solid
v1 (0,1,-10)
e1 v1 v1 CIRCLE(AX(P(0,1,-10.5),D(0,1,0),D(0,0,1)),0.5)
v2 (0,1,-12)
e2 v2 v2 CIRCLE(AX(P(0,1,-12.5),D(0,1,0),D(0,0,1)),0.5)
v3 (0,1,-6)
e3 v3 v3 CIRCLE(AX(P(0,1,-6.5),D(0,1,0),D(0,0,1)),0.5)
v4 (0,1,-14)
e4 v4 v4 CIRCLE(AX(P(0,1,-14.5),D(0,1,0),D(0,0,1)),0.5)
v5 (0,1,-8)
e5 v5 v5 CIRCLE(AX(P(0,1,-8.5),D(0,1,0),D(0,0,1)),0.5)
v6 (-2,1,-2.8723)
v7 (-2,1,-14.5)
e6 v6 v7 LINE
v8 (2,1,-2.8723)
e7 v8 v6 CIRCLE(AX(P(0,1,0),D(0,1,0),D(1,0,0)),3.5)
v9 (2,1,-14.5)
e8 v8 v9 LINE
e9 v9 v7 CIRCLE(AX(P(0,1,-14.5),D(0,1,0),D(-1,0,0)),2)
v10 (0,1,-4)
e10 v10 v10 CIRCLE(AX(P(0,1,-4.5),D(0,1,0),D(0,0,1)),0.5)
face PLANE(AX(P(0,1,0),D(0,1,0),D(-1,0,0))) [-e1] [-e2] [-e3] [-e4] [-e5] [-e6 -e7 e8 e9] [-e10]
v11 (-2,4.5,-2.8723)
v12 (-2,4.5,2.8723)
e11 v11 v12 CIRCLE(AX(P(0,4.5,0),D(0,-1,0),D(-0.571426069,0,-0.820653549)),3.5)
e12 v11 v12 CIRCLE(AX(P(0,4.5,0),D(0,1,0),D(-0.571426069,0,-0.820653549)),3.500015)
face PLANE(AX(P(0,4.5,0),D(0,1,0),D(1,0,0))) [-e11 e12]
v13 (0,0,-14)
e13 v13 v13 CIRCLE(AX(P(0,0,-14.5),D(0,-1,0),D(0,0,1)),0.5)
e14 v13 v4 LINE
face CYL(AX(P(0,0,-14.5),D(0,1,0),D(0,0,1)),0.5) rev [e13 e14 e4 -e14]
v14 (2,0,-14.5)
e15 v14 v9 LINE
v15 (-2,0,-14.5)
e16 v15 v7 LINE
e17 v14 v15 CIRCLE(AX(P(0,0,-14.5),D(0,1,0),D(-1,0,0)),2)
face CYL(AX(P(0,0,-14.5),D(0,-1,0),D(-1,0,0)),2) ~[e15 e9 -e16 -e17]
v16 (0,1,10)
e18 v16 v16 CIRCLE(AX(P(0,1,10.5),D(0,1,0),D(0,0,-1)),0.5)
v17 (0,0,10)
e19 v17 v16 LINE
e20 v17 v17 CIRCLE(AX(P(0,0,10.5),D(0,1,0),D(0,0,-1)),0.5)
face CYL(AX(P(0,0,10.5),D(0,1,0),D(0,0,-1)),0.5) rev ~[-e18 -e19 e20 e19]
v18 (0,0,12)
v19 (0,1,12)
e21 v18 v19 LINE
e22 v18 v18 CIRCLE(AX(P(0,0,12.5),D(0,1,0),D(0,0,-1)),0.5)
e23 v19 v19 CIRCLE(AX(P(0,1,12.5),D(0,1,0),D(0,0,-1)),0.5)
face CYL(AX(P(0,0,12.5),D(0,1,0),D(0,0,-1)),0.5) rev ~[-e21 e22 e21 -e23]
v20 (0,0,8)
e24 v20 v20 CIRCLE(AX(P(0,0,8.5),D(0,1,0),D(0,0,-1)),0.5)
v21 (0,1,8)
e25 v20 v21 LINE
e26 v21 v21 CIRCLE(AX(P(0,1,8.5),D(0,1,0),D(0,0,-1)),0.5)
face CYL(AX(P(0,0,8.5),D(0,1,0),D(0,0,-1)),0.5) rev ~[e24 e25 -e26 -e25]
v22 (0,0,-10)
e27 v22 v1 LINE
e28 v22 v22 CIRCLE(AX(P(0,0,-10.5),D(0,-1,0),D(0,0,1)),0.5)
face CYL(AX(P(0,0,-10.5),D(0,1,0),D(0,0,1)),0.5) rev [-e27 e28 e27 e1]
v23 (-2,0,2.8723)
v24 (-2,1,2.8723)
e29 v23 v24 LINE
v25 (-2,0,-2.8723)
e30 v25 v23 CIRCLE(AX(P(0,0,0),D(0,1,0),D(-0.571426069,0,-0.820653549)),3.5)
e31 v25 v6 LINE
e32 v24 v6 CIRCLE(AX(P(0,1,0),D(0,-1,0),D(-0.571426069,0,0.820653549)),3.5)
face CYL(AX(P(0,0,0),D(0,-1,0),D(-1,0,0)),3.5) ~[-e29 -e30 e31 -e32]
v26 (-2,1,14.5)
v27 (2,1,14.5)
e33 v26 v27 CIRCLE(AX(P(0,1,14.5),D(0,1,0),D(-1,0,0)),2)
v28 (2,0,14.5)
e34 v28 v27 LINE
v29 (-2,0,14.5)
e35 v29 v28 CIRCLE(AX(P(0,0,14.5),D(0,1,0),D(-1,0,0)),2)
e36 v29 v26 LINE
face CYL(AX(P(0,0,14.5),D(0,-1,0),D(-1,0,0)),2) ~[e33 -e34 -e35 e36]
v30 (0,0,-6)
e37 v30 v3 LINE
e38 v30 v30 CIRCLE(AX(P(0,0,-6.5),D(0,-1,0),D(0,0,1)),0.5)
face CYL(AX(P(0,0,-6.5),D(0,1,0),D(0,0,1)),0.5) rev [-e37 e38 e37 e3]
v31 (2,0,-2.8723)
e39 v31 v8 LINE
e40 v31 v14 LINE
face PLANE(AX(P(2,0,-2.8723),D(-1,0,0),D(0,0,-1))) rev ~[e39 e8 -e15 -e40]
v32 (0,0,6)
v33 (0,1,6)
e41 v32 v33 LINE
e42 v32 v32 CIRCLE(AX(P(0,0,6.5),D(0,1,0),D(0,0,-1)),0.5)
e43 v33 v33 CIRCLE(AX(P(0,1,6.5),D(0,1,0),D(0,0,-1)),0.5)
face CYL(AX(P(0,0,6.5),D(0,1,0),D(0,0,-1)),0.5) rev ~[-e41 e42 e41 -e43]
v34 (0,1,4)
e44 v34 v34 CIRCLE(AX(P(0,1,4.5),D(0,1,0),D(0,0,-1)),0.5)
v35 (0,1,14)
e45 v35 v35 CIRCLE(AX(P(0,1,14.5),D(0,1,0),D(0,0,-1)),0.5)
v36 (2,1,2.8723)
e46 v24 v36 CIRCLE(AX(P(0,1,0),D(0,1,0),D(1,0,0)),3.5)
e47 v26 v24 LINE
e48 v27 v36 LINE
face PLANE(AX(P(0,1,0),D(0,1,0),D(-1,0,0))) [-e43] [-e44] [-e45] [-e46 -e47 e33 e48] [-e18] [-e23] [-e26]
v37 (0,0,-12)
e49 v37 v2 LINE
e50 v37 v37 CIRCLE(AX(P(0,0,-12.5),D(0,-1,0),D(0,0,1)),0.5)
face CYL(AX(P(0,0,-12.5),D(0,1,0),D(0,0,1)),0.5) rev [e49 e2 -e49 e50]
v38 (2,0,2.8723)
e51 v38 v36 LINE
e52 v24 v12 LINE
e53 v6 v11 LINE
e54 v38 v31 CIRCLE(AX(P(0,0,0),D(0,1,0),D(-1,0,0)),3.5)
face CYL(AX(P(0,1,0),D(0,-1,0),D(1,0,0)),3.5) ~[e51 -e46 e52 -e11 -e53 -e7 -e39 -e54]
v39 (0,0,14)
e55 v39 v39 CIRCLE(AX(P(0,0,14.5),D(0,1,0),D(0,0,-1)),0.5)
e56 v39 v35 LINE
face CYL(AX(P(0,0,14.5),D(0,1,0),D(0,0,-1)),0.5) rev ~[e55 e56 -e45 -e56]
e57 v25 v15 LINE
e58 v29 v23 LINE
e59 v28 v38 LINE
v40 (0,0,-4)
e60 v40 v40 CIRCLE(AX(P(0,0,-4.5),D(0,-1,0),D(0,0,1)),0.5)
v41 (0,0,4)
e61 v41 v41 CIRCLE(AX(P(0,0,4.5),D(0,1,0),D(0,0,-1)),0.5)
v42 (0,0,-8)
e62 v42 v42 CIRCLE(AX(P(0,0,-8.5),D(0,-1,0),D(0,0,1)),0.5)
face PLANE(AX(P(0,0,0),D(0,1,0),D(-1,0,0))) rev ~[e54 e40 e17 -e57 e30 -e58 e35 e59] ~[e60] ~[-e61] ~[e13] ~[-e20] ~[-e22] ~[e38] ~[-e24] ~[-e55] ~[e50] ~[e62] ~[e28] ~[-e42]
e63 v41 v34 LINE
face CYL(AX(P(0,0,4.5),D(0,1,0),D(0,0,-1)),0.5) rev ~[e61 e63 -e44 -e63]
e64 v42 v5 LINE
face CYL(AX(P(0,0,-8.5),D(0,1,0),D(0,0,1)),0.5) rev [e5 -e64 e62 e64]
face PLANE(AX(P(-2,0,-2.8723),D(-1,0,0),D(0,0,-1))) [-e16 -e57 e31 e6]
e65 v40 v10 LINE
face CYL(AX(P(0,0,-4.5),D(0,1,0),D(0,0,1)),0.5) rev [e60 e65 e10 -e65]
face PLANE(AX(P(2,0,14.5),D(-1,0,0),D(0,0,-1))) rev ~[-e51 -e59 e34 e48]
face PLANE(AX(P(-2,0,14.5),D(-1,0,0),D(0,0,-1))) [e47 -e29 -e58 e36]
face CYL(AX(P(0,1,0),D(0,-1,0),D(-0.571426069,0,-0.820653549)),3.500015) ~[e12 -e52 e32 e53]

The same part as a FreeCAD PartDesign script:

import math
import FreeCAD as App
import Part
import Sketcher

doc = App.newDocument("Part")
body = doc.addObject("PartDesign::Body", "Body")

# Sketch on XZ plane
sketch1 = doc.addObject("Sketcher::SketchObject", "Sketch")
body.addObject(sketch1)
sketch1.AttachmentSupport = (doc.XZ_Plane, [""])
sketch1.MapMode = "FlatFace"
sketch1.addGeometry(Part.ArcOfCircle(Part.Circle(App.Vector(0, 0, 0), App.Vector(0, 0, 1), 3.5), math.radians(125), math.radians(235)), False)
sketch1.addGeometry(Part.LineSegment(App.Vector(-2, 2.9, 0), App.Vector(-2, 14.5, 0)), False)
sketch1.addGeometry(Part.ArcOfCircle(Part.Circle(App.Vector(0, 14.5, 0), App.Vector(0, 0, 1), 2), math.radians(0), math.radians(180)), False)
sketch1.addGeometry(Part.LineSegment(App.Vector(2, 14.5, 0), App.Vector(2, 2.9, 0)), False)
sketch1.addGeometry(Part.ArcOfCircle(Part.Circle(App.Vector(0, 0, 0), App.Vector(0, 0, 1), 3.5), math.radians(-55), math.radians(55)), False)
sketch1.addGeometry(Part.LineSegment(App.Vector(2, -2.9, 0), App.Vector(2, -14.5, 0)), False)
sketch1.addGeometry(Part.ArcOfCircle(Part.Circle(App.Vector(0, -14.5, 0), App.Vector(0, 0, 1), 2), math.radians(180), math.radians(360)), False)
sketch1.addGeometry(Part.LineSegment(App.Vector(-2, -14.5, 0), App.Vector(-2, -2.9, 0)), False)
sketch1.addConstraint(Sketcher.Constraint("Coincident", 0, 1, 1, 1))
sketch1.addConstraint(Sketcher.Constraint("Tangent", 1, 2, 2, 2))
sketch1.addConstraint(Sketcher.Constraint("Tangent", 2, 1, 3, 1))
sketch1.addConstraint(Sketcher.Constraint("Coincident", 3, 2, 4, 2))
sketch1.addConstraint(Sketcher.Constraint("Coincident", 4, 1, 5, 1))
sketch1.addConstraint(Sketcher.Constraint("Tangent", 5, 2, 6, 2))
sketch1.addConstraint(Sketcher.Constraint("Tangent", 6, 1, 7, 1))
sketch1.addConstraint(Sketcher.Constraint("Coincident", 7, 2, 0, 2))
sketch1.addConstraint(Sketcher.Constraint("Vertical", 1))
sketch1.addConstraint(Sketcher.Constraint("Vertical", 3))
sketch1.addConstraint(Sketcher.Constraint("Vertical", 5))
sketch1.addConstraint(Sketcher.Constraint("Vertical", 7))
sketch1.addConstraint(Sketcher.Constraint("Coincident", 0, 3, -1, 1))
sketch1.addConstraint(Sketcher.Constraint("Coincident", 4, 3, -1, 1))
sketch1.addConstraint(Sketcher.Constraint("Equal", 0, 4))
sketch1.addConstraint(Sketcher.Constraint("Equal", 2, 6))
sketch1.addConstraint(Sketcher.Constraint("Symmetric", 2, 3, 6, 3, -1, 1))
sketch1.addConstraint(Sketcher.Constraint("PointOnObject", 2, 3, -2))
sketch1.addConstraint(Sketcher.Constraint("Radius", 2, 2.0))
sketch1.addConstraint(Sketcher.Constraint("Radius", 0, 3.5))
sketch1.addConstraint(Sketcher.Constraint("DistanceY", -1, 1, 2, 3, 14.5))
pad1 = doc.addObject("PartDesign::Pad", "Pad")
body.addObject(pad1)
pad1.Profile = sketch1
pad1.Length = 1
pad1.Reversed = True

# Sketch on XZ plane
sketch2 = doc.addObject("Sketcher::SketchObject", "Sketch001")
body.addObject(sketch2)
sketch2.AttachmentSupport = (doc.XZ_Plane, [""])
sketch2.MapMode = "FlatFace"
sketch2.AttachmentOffset = App.Placement(App.Vector(0, 0, -1), App.Rotation())
sketch2.addGeometry(Part.Circle(App.Vector(0, 0, 0), App.Vector(0, 0, 1), 3.5), False)
sketch2.addConstraint(Sketcher.Constraint("Coincident", 0, 3, -1, 1))
sketch2.addConstraint(Sketcher.Constraint("Diameter", 0, 7.0))
pad2 = doc.addObject("PartDesign::Pad", "Pad001")
body.addObject(pad2)
pad2.Profile = sketch2
pad2.Length = 3.5
pad2.Reversed = True

# Sketch on XZ plane
sketch3 = doc.addObject("Sketcher::SketchObject", "Sketch002")
body.addObject(sketch3)
sketch3.AttachmentSupport = (doc.XZ_Plane, [""])
sketch3.MapMode = "FlatFace"
sketch3.addGeometry(Part.Circle(App.Vector(0, 14.5, 0), App.Vector(0, 0, 1), 0.5), False)
sketch3.addGeometry(Part.Circle(App.Vector(0, 12.5, 0), App.Vector(0, 0, 1), 0.5), False)
sketch3.addGeometry(Part.Circle(App.Vector(0, 10.5, 0), App.Vector(0, 0, 1), 0.5), False)
sketch3.addGeometry(Part.Circle(App.Vector(0, 8.5, 0), App.Vector(0, 0, 1), 0.5), False)
sketch3.addGeometry(Part.Circle(App.Vector(0, 6.5, 0), App.Vector(0, 0, 1), 0.5), False)
sketch3.addGeometry(Part.Circle(App.Vector(0, 4.5, 0), App.Vector(0, 0, 1), 0.5), False)
sketch3.addConstraint(Sketcher.Constraint("Equal", 0, 1))
sketch3.addConstraint(Sketcher.Constraint("Equal", 1, 2))
sketch3.addConstraint(Sketcher.Constraint("Equal", 2, 3))
sketch3.addConstraint(Sketcher.Constraint("Equal", 3, 4))
sketch3.addConstraint(Sketcher.Constraint("Equal", 4, 5))
sketch3.addConstraint(Sketcher.Constraint("PointOnObject", 0, 3, -2))
sketch3.addConstraint(Sketcher.Constraint("PointOnObject", 1, 3, -2))
sketch3.addConstraint(Sketcher.Constraint("PointOnObject", 2, 3, -2))
sketch3.addConstraint(Sketcher.Constraint("PointOnObject", 3, 3, -2))
sketch3.addConstraint(Sketcher.Constraint("PointOnObject", 4, 3, -2))
sketch3.addConstraint(Sketcher.Constraint("PointOnObject", 5, 3, -2))
sketch3.addConstraint(Sketcher.Constraint("Diameter", 0, 1.0))
sketch3.addConstraint(Sketcher.Constraint("DistanceY", 1, 3, 0, 3, 2.0))
sketch3.addConstraint(Sketcher.Constraint("DistanceY", 2, 3, 1, 3, 2.0))
sketch3.addConstraint(Sketcher.Constraint("DistanceY", 3, 3, 2, 3, 2.0))
sketch3.addConstraint(Sketcher.Constraint("DistanceY", 4, 3, 3, 3, 2.0))
sketch3.addConstraint(Sketcher.Constraint("DistanceY", 5, 3, 4, 3, 2.0))
sketch3.addConstraint(Sketcher.Constraint("DistanceY", -1, 1, 0, 3, 14.5))
doc.recompute()
hole = doc.addObject("PartDesign::Hole", "Hole")
body.addObject(hole)
hole.Profile = sketch3
hole.ThreadType = "None"
hole.Diameter = 1
hole.DepthType = "ThroughAll"
doc.recompute()

mirrored = doc.addObject("PartDesign::Mirrored", "Mirrored")
body.addObject(mirrored)
mirrored.Originals = [hole]
mirrored.MirrorPlane = (doc.XY_Plane, [""])
body.Tip = mirrored

doc.recompute()
